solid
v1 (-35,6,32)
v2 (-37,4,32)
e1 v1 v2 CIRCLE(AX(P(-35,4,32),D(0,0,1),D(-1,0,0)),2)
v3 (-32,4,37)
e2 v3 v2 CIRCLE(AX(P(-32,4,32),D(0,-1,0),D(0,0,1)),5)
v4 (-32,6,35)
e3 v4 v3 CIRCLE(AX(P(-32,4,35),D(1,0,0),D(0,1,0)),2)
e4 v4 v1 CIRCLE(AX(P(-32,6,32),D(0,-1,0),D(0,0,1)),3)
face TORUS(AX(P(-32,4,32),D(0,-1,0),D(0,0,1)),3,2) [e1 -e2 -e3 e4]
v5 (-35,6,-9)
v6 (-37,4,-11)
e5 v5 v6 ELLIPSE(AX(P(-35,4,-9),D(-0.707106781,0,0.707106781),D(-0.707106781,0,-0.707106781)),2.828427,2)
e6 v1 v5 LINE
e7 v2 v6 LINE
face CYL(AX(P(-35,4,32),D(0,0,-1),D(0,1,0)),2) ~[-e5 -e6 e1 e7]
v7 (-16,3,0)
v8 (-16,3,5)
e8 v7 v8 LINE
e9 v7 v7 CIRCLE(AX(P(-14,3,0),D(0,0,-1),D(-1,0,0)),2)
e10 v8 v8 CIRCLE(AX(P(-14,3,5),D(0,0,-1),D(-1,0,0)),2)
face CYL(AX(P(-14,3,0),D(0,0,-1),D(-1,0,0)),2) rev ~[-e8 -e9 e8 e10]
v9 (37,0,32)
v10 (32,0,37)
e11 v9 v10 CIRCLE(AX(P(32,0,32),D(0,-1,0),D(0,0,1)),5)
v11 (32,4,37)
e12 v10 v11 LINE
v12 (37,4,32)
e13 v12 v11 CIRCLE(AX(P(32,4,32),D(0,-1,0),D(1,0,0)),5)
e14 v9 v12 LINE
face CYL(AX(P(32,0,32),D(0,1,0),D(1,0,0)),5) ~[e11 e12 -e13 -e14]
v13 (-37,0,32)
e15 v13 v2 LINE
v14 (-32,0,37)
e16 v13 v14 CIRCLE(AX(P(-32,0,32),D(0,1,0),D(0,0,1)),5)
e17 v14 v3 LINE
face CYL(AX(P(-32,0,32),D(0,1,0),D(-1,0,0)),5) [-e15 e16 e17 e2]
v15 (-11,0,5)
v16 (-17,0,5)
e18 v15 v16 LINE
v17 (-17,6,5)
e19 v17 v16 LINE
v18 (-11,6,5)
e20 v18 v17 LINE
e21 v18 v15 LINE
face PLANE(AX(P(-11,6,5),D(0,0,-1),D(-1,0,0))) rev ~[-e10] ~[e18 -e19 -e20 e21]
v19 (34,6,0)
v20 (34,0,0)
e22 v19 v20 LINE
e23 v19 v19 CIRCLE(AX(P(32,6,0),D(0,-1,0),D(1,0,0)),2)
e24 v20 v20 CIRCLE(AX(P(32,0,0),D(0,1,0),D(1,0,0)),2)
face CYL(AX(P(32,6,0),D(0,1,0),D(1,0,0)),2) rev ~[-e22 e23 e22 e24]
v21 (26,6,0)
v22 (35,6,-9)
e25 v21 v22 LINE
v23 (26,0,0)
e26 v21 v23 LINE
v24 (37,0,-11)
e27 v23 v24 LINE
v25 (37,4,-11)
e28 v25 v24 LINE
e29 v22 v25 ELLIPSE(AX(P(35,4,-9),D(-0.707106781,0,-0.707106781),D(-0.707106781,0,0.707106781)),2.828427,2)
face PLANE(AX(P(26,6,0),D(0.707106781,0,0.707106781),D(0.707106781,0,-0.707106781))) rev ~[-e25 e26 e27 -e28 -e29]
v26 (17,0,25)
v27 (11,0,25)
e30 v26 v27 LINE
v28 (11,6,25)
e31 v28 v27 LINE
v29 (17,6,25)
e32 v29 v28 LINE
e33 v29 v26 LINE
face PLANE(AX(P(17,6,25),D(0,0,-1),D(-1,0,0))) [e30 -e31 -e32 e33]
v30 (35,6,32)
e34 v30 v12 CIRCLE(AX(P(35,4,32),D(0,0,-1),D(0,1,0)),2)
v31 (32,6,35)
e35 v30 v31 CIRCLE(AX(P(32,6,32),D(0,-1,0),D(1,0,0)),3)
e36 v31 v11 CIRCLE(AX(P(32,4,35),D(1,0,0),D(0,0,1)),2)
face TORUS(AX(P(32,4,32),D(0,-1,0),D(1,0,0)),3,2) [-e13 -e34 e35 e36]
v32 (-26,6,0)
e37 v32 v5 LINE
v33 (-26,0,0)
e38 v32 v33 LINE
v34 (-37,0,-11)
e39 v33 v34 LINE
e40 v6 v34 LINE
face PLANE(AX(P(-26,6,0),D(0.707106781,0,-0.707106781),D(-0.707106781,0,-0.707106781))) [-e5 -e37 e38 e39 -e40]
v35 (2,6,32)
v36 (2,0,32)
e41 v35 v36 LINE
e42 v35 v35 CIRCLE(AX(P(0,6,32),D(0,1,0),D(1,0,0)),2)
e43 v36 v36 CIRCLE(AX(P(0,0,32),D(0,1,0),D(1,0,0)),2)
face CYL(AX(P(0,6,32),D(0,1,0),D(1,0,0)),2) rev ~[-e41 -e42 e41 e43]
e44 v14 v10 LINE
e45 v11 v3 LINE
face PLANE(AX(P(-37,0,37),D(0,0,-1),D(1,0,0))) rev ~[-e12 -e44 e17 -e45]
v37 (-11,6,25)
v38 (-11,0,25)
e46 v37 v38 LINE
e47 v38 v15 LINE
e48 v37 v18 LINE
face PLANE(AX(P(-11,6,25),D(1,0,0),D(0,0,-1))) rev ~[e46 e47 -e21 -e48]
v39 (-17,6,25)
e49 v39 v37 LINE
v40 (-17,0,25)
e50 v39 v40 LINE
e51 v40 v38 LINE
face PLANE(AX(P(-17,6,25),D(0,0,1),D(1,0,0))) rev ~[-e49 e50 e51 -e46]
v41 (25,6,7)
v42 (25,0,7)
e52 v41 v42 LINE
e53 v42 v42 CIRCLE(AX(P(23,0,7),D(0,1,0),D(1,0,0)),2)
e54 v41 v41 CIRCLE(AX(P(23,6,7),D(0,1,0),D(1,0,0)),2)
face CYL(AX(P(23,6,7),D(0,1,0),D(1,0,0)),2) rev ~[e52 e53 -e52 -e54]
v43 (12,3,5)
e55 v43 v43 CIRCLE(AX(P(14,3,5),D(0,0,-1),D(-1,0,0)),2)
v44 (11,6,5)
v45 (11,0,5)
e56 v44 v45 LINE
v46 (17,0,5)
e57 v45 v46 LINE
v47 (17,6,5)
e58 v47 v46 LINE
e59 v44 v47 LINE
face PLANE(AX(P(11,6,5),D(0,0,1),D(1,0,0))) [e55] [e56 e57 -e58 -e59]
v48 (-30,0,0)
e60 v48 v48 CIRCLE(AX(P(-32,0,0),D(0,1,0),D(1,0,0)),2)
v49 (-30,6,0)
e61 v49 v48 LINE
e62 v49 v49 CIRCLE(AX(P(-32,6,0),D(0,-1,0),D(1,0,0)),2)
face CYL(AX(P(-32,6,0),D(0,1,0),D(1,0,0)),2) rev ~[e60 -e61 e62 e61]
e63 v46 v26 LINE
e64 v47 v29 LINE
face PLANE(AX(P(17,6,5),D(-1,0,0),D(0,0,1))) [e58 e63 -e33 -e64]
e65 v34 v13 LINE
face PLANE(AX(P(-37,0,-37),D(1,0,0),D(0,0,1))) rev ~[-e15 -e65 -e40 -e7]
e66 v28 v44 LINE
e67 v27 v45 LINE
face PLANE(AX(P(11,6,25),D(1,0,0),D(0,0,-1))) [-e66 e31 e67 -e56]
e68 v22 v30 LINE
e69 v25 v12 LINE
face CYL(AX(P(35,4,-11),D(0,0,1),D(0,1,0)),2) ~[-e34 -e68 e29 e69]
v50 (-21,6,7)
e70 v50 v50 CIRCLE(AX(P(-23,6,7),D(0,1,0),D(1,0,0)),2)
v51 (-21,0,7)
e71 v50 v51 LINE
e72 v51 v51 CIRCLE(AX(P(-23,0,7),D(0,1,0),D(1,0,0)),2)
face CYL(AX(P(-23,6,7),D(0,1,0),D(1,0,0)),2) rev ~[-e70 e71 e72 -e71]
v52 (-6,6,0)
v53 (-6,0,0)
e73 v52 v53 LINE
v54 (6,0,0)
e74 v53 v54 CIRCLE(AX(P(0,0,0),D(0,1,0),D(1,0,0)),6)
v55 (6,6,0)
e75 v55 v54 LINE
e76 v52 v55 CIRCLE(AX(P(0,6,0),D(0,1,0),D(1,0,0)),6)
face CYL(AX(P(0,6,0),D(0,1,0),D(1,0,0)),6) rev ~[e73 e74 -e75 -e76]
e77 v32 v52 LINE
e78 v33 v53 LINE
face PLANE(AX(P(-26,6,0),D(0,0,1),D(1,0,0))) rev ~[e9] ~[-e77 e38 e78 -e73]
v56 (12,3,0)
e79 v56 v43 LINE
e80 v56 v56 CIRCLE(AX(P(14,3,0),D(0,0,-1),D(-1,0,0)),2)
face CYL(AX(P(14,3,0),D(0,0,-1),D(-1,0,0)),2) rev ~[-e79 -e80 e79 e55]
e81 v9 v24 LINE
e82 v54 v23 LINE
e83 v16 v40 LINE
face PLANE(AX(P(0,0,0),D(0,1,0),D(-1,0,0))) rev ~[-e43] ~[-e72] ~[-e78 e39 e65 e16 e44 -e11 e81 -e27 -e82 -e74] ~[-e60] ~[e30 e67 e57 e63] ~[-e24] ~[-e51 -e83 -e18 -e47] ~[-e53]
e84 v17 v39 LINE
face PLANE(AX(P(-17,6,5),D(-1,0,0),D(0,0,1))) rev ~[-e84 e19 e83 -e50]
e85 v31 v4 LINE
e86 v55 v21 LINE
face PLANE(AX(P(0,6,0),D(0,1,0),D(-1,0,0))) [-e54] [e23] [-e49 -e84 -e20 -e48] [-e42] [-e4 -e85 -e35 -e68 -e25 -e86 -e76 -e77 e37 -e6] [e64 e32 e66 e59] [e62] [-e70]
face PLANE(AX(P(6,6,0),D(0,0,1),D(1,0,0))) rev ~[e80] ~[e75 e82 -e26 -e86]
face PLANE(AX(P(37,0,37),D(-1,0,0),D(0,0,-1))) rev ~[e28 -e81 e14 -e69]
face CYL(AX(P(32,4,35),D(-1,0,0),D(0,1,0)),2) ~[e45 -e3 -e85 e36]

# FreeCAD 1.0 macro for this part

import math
import FreeCAD as App
import Part
import Sketcher
Q = App.Units.Quantity


def edges_at(feature, points):
    """Names of the edges that pass closest to the given points."""
    edges = feature.Shape.Edges
    near = lambda p: min(range(len(edges)), key=lambda i: edges[i].distToShape(Part.Vertex(*p))[0])
    return sorted({f"Edge{near(p) + 1}" for p in points})


def add_polygon(sketch, points):
    """Adds a closed chain of lines whose ends are joined by coincident constraints."""
    first, n = sketch.GeometryCount, len(points)
    for a, b in zip(points, points[1:] + points[:1]):
        sketch.addGeometry(Part.LineSegment(App.Vector(*a, 0), App.Vector(*b, 0)), False)
    for i in range(n):
        sketch.addConstraint(Sketcher.Constraint("Coincident", first + i, 2, first + (i + 1) % n, 1))

doc = App.newDocument("Part")
body = doc.addObject("PartDesign::Body", "Body")

sketch1 = body.newObject("Sketcher::SketchObject", "Sketch")
sketch1.AttachmentSupport = (doc.getObject("XZ_Plane"), [""])
sketch1.MapMode = "FlatFace"
add_polygon(sketch1, [(-37, -37), (-37, 37), (37, 37), (37, -37)])
sketch1.addConstraint([
    Sketcher.Constraint("Vertical", 0),
    Sketcher.Constraint("Horizontal", 1),
    Sketcher.Constraint("Vertical", 2),
    Sketcher.Constraint("Horizontal", 3),
    Sketcher.Constraint("Symmetric", 0, 2, 2, 2, -1, 1),
    Sketcher.Constraint("Equal", 3, 0),
    Sketcher.Constraint("DistanceX", 1, 1, 1, 2, Q("74 mm")),
])
pad1 = body.newObject("PartDesign::Pad", "Pad")
pad1.Profile = sketch1
pad1.Length = 6
pad1.Reversed = True
doc.recompute()

fillet = body.newObject("PartDesign::Fillet", "Fillet")
fillet.Base = (pad1, edges_at(pad1, [
    (-37, 3, 37),
    (37, 3, 37),
    (37, 3, -37),
    (-37, 3, -37),
]))
fillet.Radius = 5

sketch2 = body.newObject("Sketcher::SketchObject", "Sketch001")
sketch2.AttachmentSupport = (doc.getObject("XZ_Plane"), [""])
sketch2.MapMode = "FlatFace"
sketch2.AttachmentOffset = App.Placement(App.Vector(0, 0, -6), App.Rotation())
sketch2.addGeometry([
    Part.LineSegment(App.Vector(-37, -63.5, 0), App.Vector(-37, -11, 0)),
    Part.LineSegment(App.Vector(-37, -11, 0), App.Vector(-26, 0, 0)),
    Part.LineSegment(App.Vector(-26, 0, 0), App.Vector(-6, 0, 0)),
    Part.ArcOfCircle(Part.Circle(App.Vector(0, 0, 0), App.Vector(0, 0, 1), 6), math.radians(0), math.radians(180)),
    Part.LineSegment(App.Vector(6, 0, 0), App.Vector(26, 0, 0)),
    Part.LineSegment(App.Vector(26, 0, 0), App.Vector(37, -11, 0)),
    Part.LineSegment(App.Vector(37, -11, 0), App.Vector(37, -63.5, 0)),
    Part.LineSegment(App.Vector(37, -63.5, 0), App.Vector(-37, -63.5, 0)),
    Part.Circle(App.Vector(-32, 0, 0), App.Vector(0, 0, 1), 2),
    Part.Circle(App.Vector(32, 0, 0), App.Vector(0, 0, 1), 2),
    Part.Circle(App.Vector(0, 32, 0), App.Vector(0, 0, 1), 2),
], False)
sketch2.addConstraint([
    Sketcher.Constraint("Coincident", 0, 2, 1, 1),
    Sketcher.Constraint("Coincident", 1, 2, 2, 1),
    Sketcher.Constraint("Coincident", 2, 2, 3, 2),
    Sketcher.Constraint("Coincident", 3, 1, 4, 1),
    Sketcher.Constraint("Coincident", 4, 2, 5, 1),
    Sketcher.Constraint("Coincident", 5, 2, 6, 1),
    Sketcher.Constraint("Coincident", 6, 2, 7, 1),
    Sketcher.Constraint("Coincident", 7, 2, 0, 1),
    Sketcher.Constraint("Vertical", 0),
    Sketcher.Constraint("Horizontal", 2),
    Sketcher.Constraint("Horizontal", 4),
    Sketcher.Constraint("Vertical", 6),
    Sketcher.Constraint("Horizontal", 7),
    Sketcher.Constraint("Coincident", 3, 3, -1, 1),
    Sketcher.Constraint("Equal", 8, 9),
    Sketcher.Constraint("Equal", 9, 10),
    Sketcher.Constraint("Symmetric", 8, 3, 9, 3, -1, 1),
    Sketcher.Constraint("Symmetric", 1, 2, 4, 2, -1, 1),
    Sketcher.Constraint("Symmetric", 0, 2, 5, 2, -2),
    Sketcher.Constraint("PointOnObject", 8, 3, -1),
    Sketcher.Constraint("PointOnObject", 10, 3, -2),
    Sketcher.Constraint("PointOnObject", 1, 2, -1),
    Sketcher.Constraint("Perpendicular", 1, 5),
    Sketcher.Constraint("Diameter", 8, Q("4 mm")),
    Sketcher.Constraint("Radius", 3, Q("6 mm")),
    Sketcher.Constraint("DistanceX", 2, 1, 2, 2, Q("20 mm")),
    Sketcher.Constraint("DistanceX", 7, 2, 7, 1, Q("74 mm")),
    Sketcher.Constraint("DistanceY", 0, 1, 0, 2, Q("52.5 mm")),
    Sketcher.Constraint("DistanceX", 8, 3, -1, 1, Q("32 mm")),
    Sketcher.Constraint("DistanceY", -1, 1, 10, 3, Q("32 mm")),
])
pocket1 = body.newObject("PartDesign::Pocket", "Pocket")
pocket1.Profile = sketch2
pocket1.Length = 10
pocket1.Reversed = True

sketch3 = body.newObject("Sketcher::SketchObject", "Sketch002")
sketch3.AttachmentSupport = (doc.getObject("XZ_Plane"), [""])
sketch3.MapMode = "FlatFace"
sketch3.AttachmentOffset = App.Placement(App.Vector(0, 0, -6), App.Rotation())
add_polygon(sketch3, [(17, 5), (11, 5), (11, 25), (17, 25)])
add_polygon(sketch3, [(-11, 25), (-11, 5), (-17, 5), (-17, 25)])
sketch3.addConstraint([
    Sketcher.Constraint("Horizontal", 0),
    Sketcher.Constraint("Vertical", 1),
    Sketcher.Constraint("Horizontal", 2),
    Sketcher.Constraint("Vertical", 3),
    Sketcher.Constraint("Vertical", 4),
    Sketcher.Constraint("Horizontal", 5),
    Sketcher.Constraint("Vertical", 6),
    Sketcher.Constraint("Horizontal", 7),
    Sketcher.Constraint("Symmetric", 0, 2, 4, 2, -2),
    Sketcher.Constraint("Symmetric", 2, 2, 6, 2, -2),
    Sketcher.Constraint("DistanceX", 0, 2, 0, 1, Q("6 mm")),
    Sketcher.Constraint("DistanceY", 1, 1, 1, 2, Q("20 mm")),
    Sketcher.Constraint("DistanceX", -1, 1, 0, 2, Q("11 mm")),
    Sketcher.Constraint("DistanceY", -1, 1, 0, 2, Q("5 mm")),
])
pocket2 = body.newObject("PartDesign::Pocket", "Pocket001")
pocket2.Profile = sketch3
pocket2.Length = 10
pocket2.Reversed = True

sketch4 = body.newObject("Sketcher::SketchObject", "Sketch003")
sketch4.AttachmentSupport = (doc.getObject("XY_Plane"), [""])
sketch4.MapMode = "FlatFace"
sketch4.addGeometry([
    Part.Circle(App.Vector(14, 3, 0), App.Vector(0, 0, 1), 2),
    Part.Circle(App.Vector(-14, 3, 0), App.Vector(0, 0, 1), 2),
], False)
sketch4.addConstraint([
    Sketcher.Constraint("Equal", 0, 1),
    Sketcher.Constraint("Symmetric", 0, 3, 1, 3, -2),
    Sketcher.Constraint("Diameter", 0, Q("4 mm")),
    Sketcher.Constraint("DistanceX", -1, 1, 0, 3, Q("14 mm")),
    Sketcher.Constraint("DistanceY", -1, 1, 0, 3, Q("3 mm")),
])
pocket3 = body.newObject("PartDesign::Pocket", "Pocket002")
pocket3.Profile = sketch4
pocket3.Length = 10
pocket3.Reversed = True
doc.recompute()

fillet2 = body.newObject("PartDesign::Fillet", "Fillet001")
fillet2.Base = (pocket3, edges_at(pocket3, [
    (35.535, 6, 35.535),
    (0, 6, 37),
    (-35.535, 6, 35.535),
    (-37, 6, 10.5),
    (37, 6, 10.5),
]))
fillet2.Radius = 2

sketch5 = body.newObject("Sketcher::SketchObject", "Sketch004")
sketch5.AttachmentSupport = (doc.getObject("XZ_Plane"), [""])
sketch5.MapMode = "FlatFace"
sketch5.AttachmentOffset = App.Placement(App.Vector(0, 0, -6), App.Rotation())
sketch5.addGeometry([
    Part.Circle(App.Vector(23, 7, 0), App.Vector(0, 0, 1), 2),
    Part.Circle(App.Vector(-23, 7, 0), App.Vector(0, 0, 1), 2),
], False)
sketch5.addConstraint([
    Sketcher.Constraint("Equal", 0, 1),
    Sketcher.Constraint("Symmetric", 0, 3, 1, 3, -2),
    Sketcher.Constraint("Diameter", 0, Q("4 mm")),
    Sketcher.Constraint("DistanceX", -1, 1, 0, 3, Q("23 mm")),
    Sketcher.Constraint("DistanceY", -1, 1, 0, 3, Q("7 mm")),
])
pocket4 = body.newObject("PartDesign::Pocket", "Pocket003")
pocket4.Profile = sketch5
pocket4.Length = 10
pocket4.Reversed = True

doc.recompute()
